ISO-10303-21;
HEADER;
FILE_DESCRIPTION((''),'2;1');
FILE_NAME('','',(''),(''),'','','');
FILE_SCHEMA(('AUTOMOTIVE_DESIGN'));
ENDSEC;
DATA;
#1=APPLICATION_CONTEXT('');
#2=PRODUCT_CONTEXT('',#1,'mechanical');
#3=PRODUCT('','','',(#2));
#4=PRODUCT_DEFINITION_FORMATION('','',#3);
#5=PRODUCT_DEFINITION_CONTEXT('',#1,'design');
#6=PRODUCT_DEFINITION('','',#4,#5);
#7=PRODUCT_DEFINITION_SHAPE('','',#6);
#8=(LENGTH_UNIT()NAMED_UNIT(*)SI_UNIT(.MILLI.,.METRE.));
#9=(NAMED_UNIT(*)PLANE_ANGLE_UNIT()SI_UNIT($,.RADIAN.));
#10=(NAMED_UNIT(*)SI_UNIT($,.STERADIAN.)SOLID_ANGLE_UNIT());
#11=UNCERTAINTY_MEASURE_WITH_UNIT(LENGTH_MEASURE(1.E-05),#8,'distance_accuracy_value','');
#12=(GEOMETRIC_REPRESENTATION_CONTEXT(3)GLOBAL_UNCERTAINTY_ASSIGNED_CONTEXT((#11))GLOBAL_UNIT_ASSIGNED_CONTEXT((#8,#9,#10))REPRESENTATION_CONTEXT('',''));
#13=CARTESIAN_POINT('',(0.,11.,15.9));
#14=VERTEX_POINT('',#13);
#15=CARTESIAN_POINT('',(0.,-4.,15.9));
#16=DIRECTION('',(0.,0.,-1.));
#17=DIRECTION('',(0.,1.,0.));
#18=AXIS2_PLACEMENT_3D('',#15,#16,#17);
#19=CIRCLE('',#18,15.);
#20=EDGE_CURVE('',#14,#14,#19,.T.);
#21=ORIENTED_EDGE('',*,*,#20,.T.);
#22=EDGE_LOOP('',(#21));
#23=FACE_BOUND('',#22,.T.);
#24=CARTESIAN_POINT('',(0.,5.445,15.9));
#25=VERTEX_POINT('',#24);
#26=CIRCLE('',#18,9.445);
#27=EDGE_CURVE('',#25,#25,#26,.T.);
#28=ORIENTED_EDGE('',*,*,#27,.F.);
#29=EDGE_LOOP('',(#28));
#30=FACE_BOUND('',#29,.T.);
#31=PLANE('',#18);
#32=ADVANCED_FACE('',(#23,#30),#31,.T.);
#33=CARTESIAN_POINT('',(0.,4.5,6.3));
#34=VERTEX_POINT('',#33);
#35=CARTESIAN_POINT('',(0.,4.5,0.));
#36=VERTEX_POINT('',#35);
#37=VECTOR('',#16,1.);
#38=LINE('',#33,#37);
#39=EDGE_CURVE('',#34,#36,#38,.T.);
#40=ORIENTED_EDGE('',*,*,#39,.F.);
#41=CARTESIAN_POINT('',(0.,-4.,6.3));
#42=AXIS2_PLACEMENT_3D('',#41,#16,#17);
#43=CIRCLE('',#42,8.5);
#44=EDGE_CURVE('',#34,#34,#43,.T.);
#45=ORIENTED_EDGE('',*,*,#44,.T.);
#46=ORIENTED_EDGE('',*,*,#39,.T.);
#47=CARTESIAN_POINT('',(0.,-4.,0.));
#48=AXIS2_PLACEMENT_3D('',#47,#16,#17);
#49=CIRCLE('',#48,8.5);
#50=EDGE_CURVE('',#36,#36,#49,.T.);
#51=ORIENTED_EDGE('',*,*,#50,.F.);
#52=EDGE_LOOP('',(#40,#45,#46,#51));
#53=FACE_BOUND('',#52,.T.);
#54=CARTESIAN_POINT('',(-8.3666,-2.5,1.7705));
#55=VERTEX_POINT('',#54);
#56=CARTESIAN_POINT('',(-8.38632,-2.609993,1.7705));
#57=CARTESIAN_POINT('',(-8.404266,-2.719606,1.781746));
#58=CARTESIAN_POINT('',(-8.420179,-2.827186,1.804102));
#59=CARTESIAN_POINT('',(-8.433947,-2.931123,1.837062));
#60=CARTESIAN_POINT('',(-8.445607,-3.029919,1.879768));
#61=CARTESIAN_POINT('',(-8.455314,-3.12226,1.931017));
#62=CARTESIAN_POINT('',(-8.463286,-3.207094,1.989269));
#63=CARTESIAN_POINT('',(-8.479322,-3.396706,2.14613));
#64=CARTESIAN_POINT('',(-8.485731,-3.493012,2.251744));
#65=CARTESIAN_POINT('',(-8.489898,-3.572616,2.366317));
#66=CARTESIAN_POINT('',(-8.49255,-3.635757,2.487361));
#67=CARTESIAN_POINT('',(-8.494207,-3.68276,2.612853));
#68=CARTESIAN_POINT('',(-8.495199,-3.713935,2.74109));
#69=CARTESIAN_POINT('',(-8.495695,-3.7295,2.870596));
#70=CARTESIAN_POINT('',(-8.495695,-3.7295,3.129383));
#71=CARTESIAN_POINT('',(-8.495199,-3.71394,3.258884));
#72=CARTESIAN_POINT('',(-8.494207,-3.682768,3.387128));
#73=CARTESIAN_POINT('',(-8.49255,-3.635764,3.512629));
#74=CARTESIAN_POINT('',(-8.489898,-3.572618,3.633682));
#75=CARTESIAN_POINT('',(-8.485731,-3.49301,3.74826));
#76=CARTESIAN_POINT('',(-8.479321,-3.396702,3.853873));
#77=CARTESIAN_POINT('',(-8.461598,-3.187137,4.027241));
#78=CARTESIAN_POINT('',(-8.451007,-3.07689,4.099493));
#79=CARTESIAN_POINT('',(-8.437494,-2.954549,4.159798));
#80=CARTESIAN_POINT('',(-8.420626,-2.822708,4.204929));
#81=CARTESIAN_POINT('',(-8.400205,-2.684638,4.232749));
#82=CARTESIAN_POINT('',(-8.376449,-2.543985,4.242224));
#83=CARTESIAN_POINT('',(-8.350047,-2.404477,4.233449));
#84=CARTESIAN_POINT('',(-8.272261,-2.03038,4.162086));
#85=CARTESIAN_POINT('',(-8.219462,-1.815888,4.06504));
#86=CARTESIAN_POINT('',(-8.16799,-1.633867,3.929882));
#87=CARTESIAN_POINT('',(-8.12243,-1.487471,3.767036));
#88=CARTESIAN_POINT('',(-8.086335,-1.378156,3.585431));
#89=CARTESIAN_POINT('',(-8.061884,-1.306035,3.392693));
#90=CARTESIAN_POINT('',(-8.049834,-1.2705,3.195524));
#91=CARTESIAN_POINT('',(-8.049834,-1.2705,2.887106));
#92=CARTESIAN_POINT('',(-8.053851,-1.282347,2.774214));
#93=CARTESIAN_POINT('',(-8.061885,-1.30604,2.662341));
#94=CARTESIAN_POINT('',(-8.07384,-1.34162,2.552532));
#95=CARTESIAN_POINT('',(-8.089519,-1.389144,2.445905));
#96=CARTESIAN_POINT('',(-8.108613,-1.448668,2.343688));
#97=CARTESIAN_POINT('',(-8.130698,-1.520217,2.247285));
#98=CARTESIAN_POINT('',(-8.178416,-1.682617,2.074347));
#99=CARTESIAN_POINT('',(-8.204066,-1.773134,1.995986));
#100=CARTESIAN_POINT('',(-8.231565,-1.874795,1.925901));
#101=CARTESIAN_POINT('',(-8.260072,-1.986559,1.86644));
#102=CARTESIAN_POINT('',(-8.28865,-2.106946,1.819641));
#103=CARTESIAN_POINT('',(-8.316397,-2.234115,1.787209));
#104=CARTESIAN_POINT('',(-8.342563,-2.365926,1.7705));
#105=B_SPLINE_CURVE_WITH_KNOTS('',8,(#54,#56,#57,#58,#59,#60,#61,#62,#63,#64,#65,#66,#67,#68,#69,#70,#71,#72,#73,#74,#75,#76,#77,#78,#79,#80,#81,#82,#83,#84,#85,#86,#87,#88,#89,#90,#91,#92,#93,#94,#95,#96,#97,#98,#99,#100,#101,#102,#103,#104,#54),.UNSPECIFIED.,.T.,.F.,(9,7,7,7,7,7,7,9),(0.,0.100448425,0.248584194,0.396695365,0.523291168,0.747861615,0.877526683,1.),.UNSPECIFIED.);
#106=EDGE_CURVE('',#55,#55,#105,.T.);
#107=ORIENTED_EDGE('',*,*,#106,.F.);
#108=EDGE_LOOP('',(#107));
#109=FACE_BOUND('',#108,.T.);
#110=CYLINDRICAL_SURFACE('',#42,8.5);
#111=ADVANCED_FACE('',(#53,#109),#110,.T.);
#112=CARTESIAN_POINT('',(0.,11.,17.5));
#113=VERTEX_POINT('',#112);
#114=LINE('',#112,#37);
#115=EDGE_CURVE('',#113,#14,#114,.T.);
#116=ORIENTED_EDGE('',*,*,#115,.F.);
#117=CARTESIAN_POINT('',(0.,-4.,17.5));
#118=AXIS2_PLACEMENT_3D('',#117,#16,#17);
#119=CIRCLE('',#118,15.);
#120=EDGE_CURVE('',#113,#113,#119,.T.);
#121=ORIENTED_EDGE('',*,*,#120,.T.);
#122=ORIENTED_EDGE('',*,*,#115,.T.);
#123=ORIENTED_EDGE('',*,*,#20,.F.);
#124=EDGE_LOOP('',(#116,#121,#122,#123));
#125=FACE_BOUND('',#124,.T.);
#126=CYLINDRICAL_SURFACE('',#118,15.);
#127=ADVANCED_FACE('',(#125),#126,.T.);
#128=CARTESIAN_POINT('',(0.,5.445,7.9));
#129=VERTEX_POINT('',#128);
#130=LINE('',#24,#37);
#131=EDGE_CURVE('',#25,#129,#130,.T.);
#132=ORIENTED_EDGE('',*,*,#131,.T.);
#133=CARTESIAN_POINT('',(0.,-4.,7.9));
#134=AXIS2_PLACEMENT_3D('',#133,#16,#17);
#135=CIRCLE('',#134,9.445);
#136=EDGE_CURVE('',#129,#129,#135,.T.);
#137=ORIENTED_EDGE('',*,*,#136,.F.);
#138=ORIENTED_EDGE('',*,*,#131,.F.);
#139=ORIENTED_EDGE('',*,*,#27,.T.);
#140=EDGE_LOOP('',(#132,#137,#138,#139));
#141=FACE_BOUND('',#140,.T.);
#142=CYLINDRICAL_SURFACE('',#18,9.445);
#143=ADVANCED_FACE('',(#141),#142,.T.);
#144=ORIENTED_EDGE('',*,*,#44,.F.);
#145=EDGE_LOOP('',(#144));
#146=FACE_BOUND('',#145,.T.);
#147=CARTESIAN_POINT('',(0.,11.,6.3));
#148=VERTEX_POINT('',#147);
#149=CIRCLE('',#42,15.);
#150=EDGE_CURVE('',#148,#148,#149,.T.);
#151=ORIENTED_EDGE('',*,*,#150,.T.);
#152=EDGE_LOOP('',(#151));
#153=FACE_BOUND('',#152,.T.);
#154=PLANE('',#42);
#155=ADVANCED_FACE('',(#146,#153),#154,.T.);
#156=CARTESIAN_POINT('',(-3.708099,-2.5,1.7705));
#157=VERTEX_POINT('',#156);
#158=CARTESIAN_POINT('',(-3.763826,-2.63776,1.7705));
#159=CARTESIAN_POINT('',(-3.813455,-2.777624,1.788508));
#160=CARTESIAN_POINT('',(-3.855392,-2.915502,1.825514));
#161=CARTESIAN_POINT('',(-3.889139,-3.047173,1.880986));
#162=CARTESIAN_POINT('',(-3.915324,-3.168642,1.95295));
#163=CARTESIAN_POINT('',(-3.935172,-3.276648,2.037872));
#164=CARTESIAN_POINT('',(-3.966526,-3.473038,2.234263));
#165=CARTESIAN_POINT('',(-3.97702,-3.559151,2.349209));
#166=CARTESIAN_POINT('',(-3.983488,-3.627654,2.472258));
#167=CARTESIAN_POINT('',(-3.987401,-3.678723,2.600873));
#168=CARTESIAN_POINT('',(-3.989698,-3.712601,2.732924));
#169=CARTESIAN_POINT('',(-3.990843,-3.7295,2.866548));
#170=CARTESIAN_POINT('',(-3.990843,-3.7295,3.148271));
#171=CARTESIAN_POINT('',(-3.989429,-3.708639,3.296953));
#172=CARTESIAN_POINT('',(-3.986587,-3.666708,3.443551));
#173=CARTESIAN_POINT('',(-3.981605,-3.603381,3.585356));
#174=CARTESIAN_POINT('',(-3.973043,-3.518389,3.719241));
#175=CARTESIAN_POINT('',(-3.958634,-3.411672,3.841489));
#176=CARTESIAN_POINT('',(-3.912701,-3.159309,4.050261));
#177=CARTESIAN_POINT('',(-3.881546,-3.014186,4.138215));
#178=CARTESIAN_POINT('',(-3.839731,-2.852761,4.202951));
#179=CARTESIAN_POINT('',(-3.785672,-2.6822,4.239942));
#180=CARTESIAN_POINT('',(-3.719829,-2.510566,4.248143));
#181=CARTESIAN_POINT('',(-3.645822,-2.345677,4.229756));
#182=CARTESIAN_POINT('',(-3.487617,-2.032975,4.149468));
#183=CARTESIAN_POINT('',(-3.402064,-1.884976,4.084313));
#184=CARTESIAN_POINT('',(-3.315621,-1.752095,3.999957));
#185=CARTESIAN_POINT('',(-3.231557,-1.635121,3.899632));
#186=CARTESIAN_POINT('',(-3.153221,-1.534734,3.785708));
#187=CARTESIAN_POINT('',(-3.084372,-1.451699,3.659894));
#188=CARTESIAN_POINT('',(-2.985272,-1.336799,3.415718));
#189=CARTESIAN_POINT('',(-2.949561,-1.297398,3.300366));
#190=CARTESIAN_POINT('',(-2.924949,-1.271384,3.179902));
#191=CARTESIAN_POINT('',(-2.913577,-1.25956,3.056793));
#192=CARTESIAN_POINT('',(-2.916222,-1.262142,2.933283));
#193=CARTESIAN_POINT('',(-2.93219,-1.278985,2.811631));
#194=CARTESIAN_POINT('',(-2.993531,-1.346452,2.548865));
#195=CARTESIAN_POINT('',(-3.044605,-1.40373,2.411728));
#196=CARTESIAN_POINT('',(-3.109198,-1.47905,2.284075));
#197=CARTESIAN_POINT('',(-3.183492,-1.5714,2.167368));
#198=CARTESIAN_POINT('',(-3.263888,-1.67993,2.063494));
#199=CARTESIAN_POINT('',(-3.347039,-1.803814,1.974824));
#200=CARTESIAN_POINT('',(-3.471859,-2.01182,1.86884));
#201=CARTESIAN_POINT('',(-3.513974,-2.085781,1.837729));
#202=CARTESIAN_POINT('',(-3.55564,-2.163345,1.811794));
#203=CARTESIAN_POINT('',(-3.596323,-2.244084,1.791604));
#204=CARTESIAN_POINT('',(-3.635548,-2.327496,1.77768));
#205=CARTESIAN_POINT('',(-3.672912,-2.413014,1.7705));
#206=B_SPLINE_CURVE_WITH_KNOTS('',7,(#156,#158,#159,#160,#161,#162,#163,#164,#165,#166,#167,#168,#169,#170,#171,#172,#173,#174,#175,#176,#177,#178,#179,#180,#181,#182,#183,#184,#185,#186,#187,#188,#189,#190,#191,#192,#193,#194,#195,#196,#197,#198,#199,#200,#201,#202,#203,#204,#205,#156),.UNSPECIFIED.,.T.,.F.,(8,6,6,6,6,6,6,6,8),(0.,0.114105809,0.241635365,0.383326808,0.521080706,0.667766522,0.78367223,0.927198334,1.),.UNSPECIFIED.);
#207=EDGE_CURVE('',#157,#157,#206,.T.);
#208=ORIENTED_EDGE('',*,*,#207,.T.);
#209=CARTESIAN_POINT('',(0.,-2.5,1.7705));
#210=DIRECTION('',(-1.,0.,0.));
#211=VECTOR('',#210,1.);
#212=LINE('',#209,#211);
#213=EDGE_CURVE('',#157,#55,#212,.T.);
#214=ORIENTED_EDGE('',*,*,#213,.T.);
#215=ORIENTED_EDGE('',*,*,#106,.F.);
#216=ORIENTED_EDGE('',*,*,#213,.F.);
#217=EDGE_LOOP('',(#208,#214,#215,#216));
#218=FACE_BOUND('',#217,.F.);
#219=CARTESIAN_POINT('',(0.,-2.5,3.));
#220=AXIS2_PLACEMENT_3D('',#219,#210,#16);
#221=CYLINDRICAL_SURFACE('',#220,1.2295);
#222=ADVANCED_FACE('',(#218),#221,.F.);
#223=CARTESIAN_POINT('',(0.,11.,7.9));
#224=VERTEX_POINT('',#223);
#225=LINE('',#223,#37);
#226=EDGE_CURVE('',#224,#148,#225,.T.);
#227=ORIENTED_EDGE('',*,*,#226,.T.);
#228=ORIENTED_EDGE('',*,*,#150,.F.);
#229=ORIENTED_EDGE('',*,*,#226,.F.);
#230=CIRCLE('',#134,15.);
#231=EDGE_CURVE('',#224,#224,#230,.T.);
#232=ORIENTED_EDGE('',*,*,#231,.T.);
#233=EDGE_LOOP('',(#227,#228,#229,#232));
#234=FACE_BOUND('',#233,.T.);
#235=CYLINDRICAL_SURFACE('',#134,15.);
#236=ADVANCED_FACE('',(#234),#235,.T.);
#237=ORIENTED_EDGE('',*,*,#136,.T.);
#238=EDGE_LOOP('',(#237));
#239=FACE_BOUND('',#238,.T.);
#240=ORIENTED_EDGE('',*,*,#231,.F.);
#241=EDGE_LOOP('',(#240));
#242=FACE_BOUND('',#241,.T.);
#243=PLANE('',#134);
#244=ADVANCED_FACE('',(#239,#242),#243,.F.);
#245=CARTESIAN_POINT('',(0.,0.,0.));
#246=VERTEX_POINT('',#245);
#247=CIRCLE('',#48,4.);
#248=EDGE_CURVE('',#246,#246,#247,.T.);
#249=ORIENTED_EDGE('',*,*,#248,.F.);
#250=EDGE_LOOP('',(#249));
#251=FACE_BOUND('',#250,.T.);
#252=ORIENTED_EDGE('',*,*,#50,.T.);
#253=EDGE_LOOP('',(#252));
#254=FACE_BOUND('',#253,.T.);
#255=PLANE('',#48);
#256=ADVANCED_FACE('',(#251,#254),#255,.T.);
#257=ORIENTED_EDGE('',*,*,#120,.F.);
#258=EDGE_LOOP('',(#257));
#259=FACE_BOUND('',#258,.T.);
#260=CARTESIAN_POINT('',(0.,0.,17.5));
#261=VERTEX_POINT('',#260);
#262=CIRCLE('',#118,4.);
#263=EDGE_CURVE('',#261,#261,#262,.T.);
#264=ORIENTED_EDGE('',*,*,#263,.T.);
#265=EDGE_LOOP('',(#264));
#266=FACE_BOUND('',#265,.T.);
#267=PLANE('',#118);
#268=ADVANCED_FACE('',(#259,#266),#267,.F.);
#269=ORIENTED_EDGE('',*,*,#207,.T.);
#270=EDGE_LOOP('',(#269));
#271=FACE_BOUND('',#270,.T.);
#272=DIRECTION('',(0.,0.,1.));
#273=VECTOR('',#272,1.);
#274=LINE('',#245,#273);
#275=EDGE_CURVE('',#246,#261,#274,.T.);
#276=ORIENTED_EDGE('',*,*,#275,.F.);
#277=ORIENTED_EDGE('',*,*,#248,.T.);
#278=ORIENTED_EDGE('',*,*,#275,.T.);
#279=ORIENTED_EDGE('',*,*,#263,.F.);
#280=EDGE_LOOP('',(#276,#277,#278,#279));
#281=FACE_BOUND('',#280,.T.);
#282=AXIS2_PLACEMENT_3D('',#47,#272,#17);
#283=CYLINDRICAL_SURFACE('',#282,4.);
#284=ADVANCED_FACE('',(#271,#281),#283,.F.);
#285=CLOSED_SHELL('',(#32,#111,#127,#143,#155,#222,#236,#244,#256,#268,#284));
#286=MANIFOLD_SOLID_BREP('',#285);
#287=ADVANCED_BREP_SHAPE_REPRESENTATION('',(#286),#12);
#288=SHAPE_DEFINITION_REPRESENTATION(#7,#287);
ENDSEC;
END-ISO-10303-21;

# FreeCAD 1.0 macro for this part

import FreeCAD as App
import Part
import Sketcher

doc = App.newDocument("Part")
params = doc.addObject("Spreadsheet::Sheet", "Params")
for row, (alias, value) in enumerate([
    ("sketch1_height", "8 mm"),
    ("sketch1_height2", "17.5 mm"),
    ("sketch1_width", "11 mm"),
    ("sketch1_width2", "4.5 mm"),
    ("revolution_angle", "360 deg"),
    ("hole_diameter", "2.459 mm"),
], start=1):
    params.set(f"A{row}", alias)
    params.set(f"B{row}", "=" + value)
    params.setAlias(f"B{row}", alias)

body = doc.addObject("PartDesign::Body", "Body")

# Sketch on YZ plane
sketch1 = doc.addObject("Sketcher::SketchObject", "Sketch")
body.addObject(sketch1)
sketch1.AttachmentSupport = (doc.YZ_Plane, [""])
sketch1.MapMode = "FlatFace"
sketch1.addGeometry([
    Part.LineSegment(App.Vector(11, 17.5, 0), App.Vector(0, 17.5, 0)),  # 0
    Part.LineSegment(App.Vector(0, 17.5, 0), App.Vector(0, 0, 0)),  # 1
    Part.LineSegment(App.Vector(0, 0, 0), App.Vector(4.5, 0, 0)),  # 2
    Part.LineSegment(App.Vector(4.5, 0, 0), App.Vector(4.5, 6.3, 0)),  # 3
    Part.LineSegment(App.Vector(4.5, 6.3, 0), App.Vector(11, 6.3, 0)),  # 4
    Part.LineSegment(App.Vector(11, 6.3, 0), App.Vector(11, 7.9, 0)),  # 5
    Part.LineSegment(App.Vector(11, 7.9, 0), App.Vector(5.445, 7.9, 0)),  # 6
    Part.LineSegment(App.Vector(5.445, 7.9, 0), App.Vector(5.445, 15.9, 0)),  # 7
    Part.LineSegment(App.Vector(5.445, 15.9, 0), App.Vector(11, 15.9, 0)),  # 8
    Part.LineSegment(App.Vector(11, 15.9, 0), App.Vector(11, 17.5, 0)),  # 9
], False)
sketch1.addGeometry(Part.LineSegment(App.Vector(-4, 17.5, 0), App.Vector(-4, 0, 0)), True)  # axis
sketch1.addConstraint([
    Sketcher.Constraint("Coincident", 0, 2, 1, 1),
    Sketcher.Constraint("Coincident", 1, 2, 2, 1),
    Sketcher.Constraint("Coincident", 2, 2, 3, 1),
    Sketcher.Constraint("Coincident", 3, 2, 4, 1),
    Sketcher.Constraint("Coincident", 4, 2, 5, 1),
    Sketcher.Constraint("Coincident", 5, 2, 6, 1),
    Sketcher.Constraint("Coincident", 6, 2, 7, 1),
    Sketcher.Constraint("Coincident", 7, 2, 8, 1),
    Sketcher.Constraint("Coincident", 8, 2, 9, 1),
    Sketcher.Constraint("Coincident", 9, 2, 0, 1),
    Sketcher.Constraint("Horizontal", 0),
    Sketcher.Constraint("Vertical", 1),
    Sketcher.Constraint("Horizontal", 2),
    Sketcher.Constraint("Vertical", 3),
    Sketcher.Constraint("Horizontal", 4),
    Sketcher.Constraint("Vertical", 5),
    Sketcher.Constraint("Horizontal", 6),
    Sketcher.Constraint("Vertical", 7),
    Sketcher.Constraint("Horizontal", 8),
    Sketcher.Constraint("Vertical", 9),
    Sketcher.Constraint("Vertical", 10),
    Sketcher.Constraint("Coincident", 1, 2, -1, 1),
    Sketcher.Constraint("PointOnObject", 10, 2, -1),
    Sketcher.Constraint("Horizontal", 9, 2, 10, 1),
    Sketcher.Constraint("Vertical", 5, 2, 8, 2),
    Sketcher.Constraint("Equal", 5, 9),
    Sketcher.Constraint("DistanceY", 7, 1, 7, 2, 8.0),
    Sketcher.Constraint("DistanceY", 1, 2, 1, 1, 17.5),
    Sketcher.Constraint("DistanceY", 3, 2, 0, 2, 11.2),
    Sketcher.Constraint("DistanceX", 0, 2, 0, 1, 11.0),
    Sketcher.Constraint("DistanceX", 2, 1, 2, 2, 4.5),
    Sketcher.Constraint("DistanceX", 10, 1, -1, 1, 4.0),
    Sketcher.Constraint("DistanceX", 6, 2, 6, 1, 5.555),
])
sketch1.setExpression("Constraints[26]", "Params.sketch1_height")
sketch1.setExpression("Constraints[27]", "Params.sketch1_height2")
sketch1.setExpression("Constraints[29]", "Params.sketch1_width")
sketch1.setExpression("Constraints[30]", "Params.sketch1_width2")
revolution = doc.addObject("PartDesign::Revolution", "Revolution")
body.addObject(revolution)
revolution.Profile = sketch1
revolution.ReferenceAxis = (sketch1, ["Axis0"])
revolution.setExpression("Angle", "Params.revolution_angle")

# Sketch on YZ plane
sketch2 = doc.addObject("Sketcher::SketchObject", "Sketch001")
body.addObject(sketch2)
sketch2.AttachmentSupport = (doc.YZ_Plane, [""])
sketch2.MapMode = "FlatFace"
sketch2.addGeometry(Part.Circle(App.Vector(-2.5, 3, 0), App.Vector(0, 0, 1), 1.2295), False)
sketch2.addConstraint([
    Sketcher.Constraint("Diameter", 0, 2.459),
    Sketcher.Constraint("DistanceY", -1, 1, 0, 3, 3.0),
    Sketcher.Constraint("DistanceX", 0, 3, -1, 1, 2.5),
])
doc.recompute()
hole = doc.addObject("PartDesign::Hole", "Hole")
body.addObject(hole)
hole.Profile = sketch2
hole.ThreadType = "None"
hole.setExpression("Diameter", "Params.hole_diameter")
hole.DepthType = "ThroughAll"

doc.recompute()
